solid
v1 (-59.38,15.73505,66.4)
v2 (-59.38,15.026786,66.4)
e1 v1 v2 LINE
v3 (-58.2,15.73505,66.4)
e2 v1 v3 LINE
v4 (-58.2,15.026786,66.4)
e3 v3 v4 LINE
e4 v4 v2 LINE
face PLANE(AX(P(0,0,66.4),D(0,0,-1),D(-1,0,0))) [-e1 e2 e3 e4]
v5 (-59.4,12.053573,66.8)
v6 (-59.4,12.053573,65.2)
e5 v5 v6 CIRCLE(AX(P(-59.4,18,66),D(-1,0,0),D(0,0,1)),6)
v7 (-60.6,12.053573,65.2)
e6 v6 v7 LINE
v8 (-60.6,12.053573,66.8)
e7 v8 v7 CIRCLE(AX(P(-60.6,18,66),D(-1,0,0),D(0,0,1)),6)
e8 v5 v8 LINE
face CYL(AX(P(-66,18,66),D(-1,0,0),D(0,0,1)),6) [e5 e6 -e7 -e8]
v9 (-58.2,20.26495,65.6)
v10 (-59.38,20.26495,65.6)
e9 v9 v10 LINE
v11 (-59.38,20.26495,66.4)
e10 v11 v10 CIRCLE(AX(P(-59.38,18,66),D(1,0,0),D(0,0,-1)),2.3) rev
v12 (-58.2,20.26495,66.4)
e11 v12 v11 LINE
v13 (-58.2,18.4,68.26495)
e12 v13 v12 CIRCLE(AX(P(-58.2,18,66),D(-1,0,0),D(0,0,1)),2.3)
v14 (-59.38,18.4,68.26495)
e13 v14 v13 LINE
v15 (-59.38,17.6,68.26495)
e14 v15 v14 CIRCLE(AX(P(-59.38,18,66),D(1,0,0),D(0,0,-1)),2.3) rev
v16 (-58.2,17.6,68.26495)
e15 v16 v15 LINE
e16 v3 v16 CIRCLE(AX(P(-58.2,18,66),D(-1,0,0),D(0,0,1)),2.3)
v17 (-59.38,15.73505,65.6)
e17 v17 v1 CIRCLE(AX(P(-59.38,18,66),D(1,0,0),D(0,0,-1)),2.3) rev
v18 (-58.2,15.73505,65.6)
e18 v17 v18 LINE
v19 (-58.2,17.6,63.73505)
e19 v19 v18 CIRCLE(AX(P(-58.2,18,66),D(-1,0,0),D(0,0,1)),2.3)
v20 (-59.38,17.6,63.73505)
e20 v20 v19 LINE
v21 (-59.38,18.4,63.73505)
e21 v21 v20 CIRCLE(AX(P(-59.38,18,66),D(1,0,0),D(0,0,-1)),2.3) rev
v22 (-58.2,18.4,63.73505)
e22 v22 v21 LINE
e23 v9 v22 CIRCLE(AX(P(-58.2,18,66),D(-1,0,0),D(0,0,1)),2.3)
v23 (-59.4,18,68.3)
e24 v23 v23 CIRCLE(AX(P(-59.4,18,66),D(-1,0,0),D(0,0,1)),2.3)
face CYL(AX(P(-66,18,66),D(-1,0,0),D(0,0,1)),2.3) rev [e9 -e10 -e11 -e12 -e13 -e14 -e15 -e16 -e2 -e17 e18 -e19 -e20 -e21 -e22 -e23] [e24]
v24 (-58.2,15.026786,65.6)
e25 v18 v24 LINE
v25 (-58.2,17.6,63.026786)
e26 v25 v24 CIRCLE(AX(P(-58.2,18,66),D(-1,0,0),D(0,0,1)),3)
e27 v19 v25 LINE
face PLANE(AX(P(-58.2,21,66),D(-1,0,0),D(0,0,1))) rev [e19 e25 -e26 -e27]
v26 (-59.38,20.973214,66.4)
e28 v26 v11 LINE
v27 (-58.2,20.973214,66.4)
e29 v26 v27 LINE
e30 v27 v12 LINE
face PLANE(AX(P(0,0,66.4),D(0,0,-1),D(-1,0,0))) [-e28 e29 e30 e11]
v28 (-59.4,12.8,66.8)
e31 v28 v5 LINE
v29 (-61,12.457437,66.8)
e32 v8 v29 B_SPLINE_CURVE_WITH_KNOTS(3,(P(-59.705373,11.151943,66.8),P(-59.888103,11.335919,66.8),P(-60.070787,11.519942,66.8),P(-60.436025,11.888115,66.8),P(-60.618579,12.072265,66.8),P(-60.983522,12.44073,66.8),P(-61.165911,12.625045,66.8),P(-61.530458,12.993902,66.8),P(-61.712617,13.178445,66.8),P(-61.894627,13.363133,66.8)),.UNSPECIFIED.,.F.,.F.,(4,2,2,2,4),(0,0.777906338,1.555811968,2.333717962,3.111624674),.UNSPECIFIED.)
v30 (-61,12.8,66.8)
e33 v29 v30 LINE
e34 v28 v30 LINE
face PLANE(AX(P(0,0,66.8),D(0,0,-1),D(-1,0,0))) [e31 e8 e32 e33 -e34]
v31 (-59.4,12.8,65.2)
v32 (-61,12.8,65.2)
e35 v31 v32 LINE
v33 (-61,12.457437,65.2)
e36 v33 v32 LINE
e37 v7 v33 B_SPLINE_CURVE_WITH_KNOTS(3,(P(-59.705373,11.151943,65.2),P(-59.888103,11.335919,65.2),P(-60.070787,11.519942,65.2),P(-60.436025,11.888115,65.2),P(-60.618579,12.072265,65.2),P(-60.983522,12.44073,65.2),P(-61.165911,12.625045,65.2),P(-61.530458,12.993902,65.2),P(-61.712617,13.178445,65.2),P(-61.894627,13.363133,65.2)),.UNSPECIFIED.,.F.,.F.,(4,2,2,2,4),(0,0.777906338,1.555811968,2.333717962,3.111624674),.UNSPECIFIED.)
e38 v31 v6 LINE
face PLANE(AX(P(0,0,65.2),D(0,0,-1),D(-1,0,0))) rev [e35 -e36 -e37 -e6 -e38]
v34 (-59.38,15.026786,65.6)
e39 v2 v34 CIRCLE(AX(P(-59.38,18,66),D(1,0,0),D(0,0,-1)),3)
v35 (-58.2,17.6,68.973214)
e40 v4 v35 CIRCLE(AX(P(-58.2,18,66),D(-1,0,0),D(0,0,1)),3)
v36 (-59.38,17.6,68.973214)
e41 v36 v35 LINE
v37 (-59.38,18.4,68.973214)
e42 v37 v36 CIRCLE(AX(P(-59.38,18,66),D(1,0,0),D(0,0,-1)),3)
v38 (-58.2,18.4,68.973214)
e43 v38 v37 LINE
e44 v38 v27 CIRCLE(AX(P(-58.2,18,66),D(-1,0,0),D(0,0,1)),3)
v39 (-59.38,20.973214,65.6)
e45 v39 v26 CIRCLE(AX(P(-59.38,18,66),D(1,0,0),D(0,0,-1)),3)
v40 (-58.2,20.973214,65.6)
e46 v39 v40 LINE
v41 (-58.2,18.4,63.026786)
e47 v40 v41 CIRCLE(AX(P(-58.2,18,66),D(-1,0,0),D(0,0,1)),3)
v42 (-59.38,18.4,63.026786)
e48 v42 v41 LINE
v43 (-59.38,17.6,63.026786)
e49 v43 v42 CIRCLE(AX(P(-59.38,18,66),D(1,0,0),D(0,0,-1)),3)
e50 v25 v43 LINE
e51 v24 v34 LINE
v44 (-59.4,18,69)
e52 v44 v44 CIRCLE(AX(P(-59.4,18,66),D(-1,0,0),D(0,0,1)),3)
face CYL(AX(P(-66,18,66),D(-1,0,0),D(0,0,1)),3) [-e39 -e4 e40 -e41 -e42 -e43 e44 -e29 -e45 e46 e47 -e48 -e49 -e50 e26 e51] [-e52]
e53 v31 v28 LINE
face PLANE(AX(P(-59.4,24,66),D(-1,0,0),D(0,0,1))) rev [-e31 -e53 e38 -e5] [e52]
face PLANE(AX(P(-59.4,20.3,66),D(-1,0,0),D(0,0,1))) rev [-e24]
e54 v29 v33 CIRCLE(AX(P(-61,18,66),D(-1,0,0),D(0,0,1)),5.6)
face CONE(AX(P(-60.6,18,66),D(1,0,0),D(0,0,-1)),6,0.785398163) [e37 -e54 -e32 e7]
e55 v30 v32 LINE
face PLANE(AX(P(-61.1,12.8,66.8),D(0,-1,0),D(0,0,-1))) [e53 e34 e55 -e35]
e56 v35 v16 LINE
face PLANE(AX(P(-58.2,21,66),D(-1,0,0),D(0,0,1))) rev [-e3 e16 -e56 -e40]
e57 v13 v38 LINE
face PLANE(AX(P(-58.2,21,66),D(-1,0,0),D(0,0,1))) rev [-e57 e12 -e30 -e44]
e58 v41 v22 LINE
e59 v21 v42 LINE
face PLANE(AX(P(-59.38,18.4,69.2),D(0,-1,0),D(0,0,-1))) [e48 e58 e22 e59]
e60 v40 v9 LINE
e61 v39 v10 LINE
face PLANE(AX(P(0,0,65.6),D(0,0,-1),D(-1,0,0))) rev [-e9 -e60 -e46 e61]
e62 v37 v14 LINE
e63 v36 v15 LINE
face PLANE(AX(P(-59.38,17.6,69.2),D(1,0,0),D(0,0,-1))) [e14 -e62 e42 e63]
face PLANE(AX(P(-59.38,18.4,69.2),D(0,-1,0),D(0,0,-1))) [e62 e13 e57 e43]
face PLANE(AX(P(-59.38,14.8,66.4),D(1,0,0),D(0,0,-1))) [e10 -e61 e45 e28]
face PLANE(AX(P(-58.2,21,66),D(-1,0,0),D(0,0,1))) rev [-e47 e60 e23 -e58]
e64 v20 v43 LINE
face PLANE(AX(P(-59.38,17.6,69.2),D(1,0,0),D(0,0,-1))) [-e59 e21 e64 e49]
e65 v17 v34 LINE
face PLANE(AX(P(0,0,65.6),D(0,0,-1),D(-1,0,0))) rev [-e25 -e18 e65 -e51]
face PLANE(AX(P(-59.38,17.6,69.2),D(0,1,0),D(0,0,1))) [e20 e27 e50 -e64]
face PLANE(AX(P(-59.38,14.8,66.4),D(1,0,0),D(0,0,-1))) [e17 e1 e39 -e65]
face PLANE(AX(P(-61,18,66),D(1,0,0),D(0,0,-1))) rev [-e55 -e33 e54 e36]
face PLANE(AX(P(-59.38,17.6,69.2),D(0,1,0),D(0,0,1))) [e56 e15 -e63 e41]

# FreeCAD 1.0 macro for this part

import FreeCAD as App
import Part
import Sketcher

V = App.Vector
Q = App.Units.Quantity

doc = App.newDocument("Part")
body = doc.addObject("PartDesign::Body", "Body")

# Sketch on XY plane
sketch1 = body.newObject("Sketcher::SketchObject", "Sketch")
sketch1.AttachmentSupport = (doc.getObject("XY_Plane"), [""])
sketch1.MapMode = "FlatFace"
sketch1.AttachmentOffset = App.Placement(V(0, 0, 66), App.Rotation())
sketch1.addGeometry(Part.LineSegment(V(-59.4, 20.3, 0), V(-58.2, 20.3, 0)), False)
sketch1.addGeometry(Part.LineSegment(V(-58.2, 20.3, 0), V(-58.2, 21, 0)), False)
sketch1.addGeometry(Part.LineSegment(V(-58.2, 21, 0), V(-59.4, 21, 0)), False)
sketch1.addGeometry(Part.LineSegment(V(-59.4, 21, 0), V(-59.4, 24, 0)), False)
sketch1.addGeometry(Part.LineSegment(V(-59.4, 24, 0), V(-60.6, 24, 0)), False)
sketch1.addGeometry(Part.LineSegment(V(-60.6, 24, 0), V(-61, 23.6, 0)), False)
sketch1.addGeometry(Part.LineSegment(V(-61, 23.6, 0), V(-61, 18, 0)), False)
sketch1.addGeometry(Part.LineSegment(V(-61, 18, 0), V(-59.4, 18, 0)), False)
sketch1.addGeometry(Part.LineSegment(V(-59.4, 18, 0), V(-59.4, 20.3, 0)), False)
sketch1.addGeometry(Part.LineSegment(V(-61, 18, 0), V(-58.2, 18, 0)), True)  # axis
sketch1.addConstraint(Sketcher.Constraint("Coincident", 0, 2, 1, 1))
sketch1.addConstraint(Sketcher.Constraint("Coincident", 1, 2, 2, 1))
sketch1.addConstraint(Sketcher.Constraint("Coincident", 2, 2, 3, 1))
sketch1.addConstraint(Sketcher.Constraint("Coincident", 3, 2, 4, 1))
sketch1.addConstraint(Sketcher.Constraint("Coincident", 4, 2, 5, 1))
sketch1.addConstraint(Sketcher.Constraint("Coincident", 5, 2, 6, 1))
sketch1.addConstraint(Sketcher.Constraint("Coincident", 6, 2, 7, 1))
sketch1.addConstraint(Sketcher.Constraint("Coincident", 7, 2, 8, 1))
sketch1.addConstraint(Sketcher.Constraint("Coincident", 8, 2, 0, 1))
sketch1.addConstraint(Sketcher.Constraint("Horizontal", 0))
sketch1.addConstraint(Sketcher.Constraint("Vertical", 1))
sketch1.addConstraint(Sketcher.Constraint("Horizontal", 2))
sketch1.addConstraint(Sketcher.Constraint("Vertical", 3))
sketch1.addConstraint(Sketcher.Constraint("Horizontal", 4))
sketch1.addConstraint(Sketcher.Constraint("Vertical", 6))
sketch1.addConstraint(Sketcher.Constraint("Horizontal", 7))
sketch1.addConstraint(Sketcher.Constraint("Vertical", 8))
sketch1.addConstraint(Sketcher.Constraint("Horizontal", 9))
sketch1.addConstraint(Sketcher.Constraint("Coincident", 9, 1, 6, 2))
sketch1.addConstraint(Sketcher.Constraint("Vertical", 3, 2, 7, 2))
sketch1.addConstraint(Sketcher.Constraint("Vertical", 1, 2, 9, 2))
sketch1.addConstraint(Sketcher.Constraint("Equal", 2, 4))
sketch1.addConstraint(Sketcher.Constraint("DistanceY", 3, 1, 3, 2, Q("3 mm")))
sketch1.addConstraint(Sketcher.Constraint("Angle", 5, Q("-135 deg")))
sketch1.addConstraint(Sketcher.Constraint("DistanceX", 0, 1, 0, 2, Q("1.2 mm")))
sketch1.addConstraint(Sketcher.Constraint("DistanceX", 7, 1, 7, 2, Q("1.6 mm")))
sketch1.addConstraint(Sketcher.Constraint("DistanceY", 1, 1, 1, 2, Q("0.7 mm")))
sketch1.addConstraint(Sketcher.Constraint("DistanceY", 6, 2, 6, 1, Q("5.6 mm")))
sketch1.addConstraint(Sketcher.Constraint("DistanceY", -1, 1, 1, 2, Q("21 mm")))
sketch1.addConstraint(Sketcher.Constraint("DistanceX", 5, 2, -1, 1, Q("61 mm")))
revolution = body.newObject("PartDesign::Revolution", "Revolution")
revolution.Profile = sketch1
revolution.ReferenceAxis = (sketch1, ["Axis0"])
revolution.Angle = 360
body2 = doc.addObject("PartDesign::Body", "Body001")

# Sketch on XY plane
sketch2 = body2.newObject("Sketcher::SketchObject", "Sketch001")
sketch2.AttachmentSupport = (doc.getObject("XY_Plane001"), [""])
sketch2.MapMode = "FlatFace"
sketch2.AttachmentOffset = App.Placement(V(0, 0, 62.8), App.Rotation())
sketch2.addGeometry(Part.LineSegment(V(-59.38, 18.4, 0), V(-59.38, 17.6, 0)), False)
sketch2.addGeometry(Part.LineSegment(V(-59.38, 17.6, 0), V(-58.1, 17.6, 0)), False)
sketch2.addGeometry(Part.LineSegment(V(-58.1, 17.6, 0), V(-58.1, 18.4, 0)), False)
sketch2.addGeometry(Part.LineSegment(V(-58.1, 18.4, 0), V(-59.38, 18.4, 0)), False)
sketch2.addConstraint(Sketcher.Constraint("Coincident", 0, 2, 1, 1))
sketch2.addConstraint(Sketcher.Constraint("Coincident", 1, 2, 2, 1))
sketch2.addConstraint(Sketcher.Constraint("Coincident", 2, 2, 3, 1))
sketch2.addConstraint(Sketcher.Constraint("Coincident", 3, 2, 0, 1))
sketch2.addConstraint(Sketcher.Constraint("Vertical", 0))
sketch2.addConstraint(Sketcher.Constraint("Horizontal", 1))
sketch2.addConstraint(Sketcher.Constraint("Vertical", 2))
sketch2.addConstraint(Sketcher.Constraint("Horizontal", 3))
sketch2.addConstraint(Sketcher.Constraint("DistanceY", 0, 2, 0, 1, Q("0.8 mm")))
sketch2.addConstraint(Sketcher.Constraint("DistanceX", 1, 1, 1, 2, Q("1.28 mm")))
sketch2.addConstraint(Sketcher.Constraint("DistanceY", -1, 1, 0, 2, Q("17.6 mm")))
sketch2.addConstraint(Sketcher.Constraint("DistanceX", 1, 2, -1, 1, Q("58.1 mm")))
pad1 = body2.newObject("PartDesign::Pad", "Pad")
pad1.Profile = sketch2
pad1.Length = 6.4
doc.recompute()

boolean = body.newObject("PartDesign::Boolean", "Boolean")
boolean.Type = "Cut"
boolean.addObjects([body2])
body3 = doc.addObject("PartDesign::Body", "Body002")

# Sketch on XY plane
sketch3 = body3.newObject("Sketcher::SketchObject", "Sketch002")
sketch3.AttachmentSupport = (doc.getObject("XY_Plane002"), [""])
sketch3.MapMode = "FlatFace"
sketch3.AttachmentOffset = App.Placement(V(0, 0, 65.6), App.Rotation())
sketch3.addGeometry(Part.LineSegment(V(-59.38, 21.2, 0), V(-59.38, 14.8, 0)), False)
sketch3.addGeometry(Part.LineSegment(V(-59.38, 14.8, 0), V(-58.1, 14.8, 0)), False)
sketch3.addGeometry(Part.LineSegment(V(-58.1, 14.8, 0), V(-58.1, 21.2, 0)), False)
sketch3.addGeometry(Part.LineSegment(V(-58.1, 21.2, 0), V(-59.38, 21.2, 0)), False)
sketch3.addConstraint(Sketcher.Constraint("Coincident", 0, 2, 1, 1))
sketch3.addConstraint(Sketcher.Constraint("Coincident", 1, 2, 2, 1))
sketch3.addConstraint(Sketcher.Constraint("Coincident", 2, 2, 3, 1))
sketch3.addConstraint(Sketcher.Constraint("Coincident", 3, 2, 0, 1))
sketch3.addConstraint(Sketcher.Constraint("Vertical", 0))
sketch3.addConstraint(Sketcher.Constraint("Horizontal", 1))
sketch3.addConstraint(Sketcher.Constraint("Vertical", 2))
sketch3.addConstraint(Sketcher.Constraint("Horizontal", 3))
sketch3.addConstraint(Sketcher.Constraint("DistanceY", 0, 2, 0, 1, Q("6.4 mm")))
sketch3.addConstraint(Sketcher.Constraint("DistanceX", 1, 1, 1, 2, Q("1.28 mm")))
sketch3.addConstraint(Sketcher.Constraint("DistanceY", -1, 1, 0, 2, Q("14.8 mm")))
sketch3.addConstraint(Sketcher.Constraint("DistanceX", 1, 2, -1, 1, Q("58.1 mm")))
pad2 = body3.newObject("PartDesign::Pad", "Pad001")
pad2.Profile = sketch3
pad2.Length = 0.8
doc.recompute()

boolean2 = body.newObject("PartDesign::Boolean", "Boolean001")
boolean2.Type = "Cut"
boolean2.addObjects([body3])
body4 = doc.addObject("PartDesign::Body", "Body003")

# Sketch on XY plane
sketch4 = body4.newObject("Sketcher::SketchObject", "Sketch003")
sketch4.AttachmentSupport = (doc.getObject("XY_Plane003"), [""])
sketch4.MapMode = "FlatFace"
sketch4.AttachmentOffset = App.Placement(V(0, 0, 65.2), App.Rotation())
sketch4.addGeometry(Part.LineSegment(V(-61.1, 12.8, 0), V(-61.1, 11.9, 0)), False)
sketch4.addGeometry(Part.LineSegment(V(-61.1, 11.9, 0), V(-59.3, 11.9, 0)), False)
sketch4.addGeometry(Part.LineSegment(V(-59.3, 11.9, 0), V(-59.3, 12.8, 0)), False)
sketch4.addGeometry(Part.LineSegment(V(-59.3, 12.8, 0), V(-61.1, 12.8, 0)), False)
sketch4.addConstraint(Sketcher.Constraint("Coincident", 0, 2, 1, 1))
sketch4.addConstraint(Sketcher.Constraint("Coincident", 1, 2, 2, 1))
sketch4.addConstraint(Sketcher.Constraint("Coincident", 2, 2, 3, 1))
sketch4.addConstraint(Sketcher.Constraint("Coincident", 3, 2, 0, 1))
sketch4.addConstraint(Sketcher.Constraint("Vertical", 0))
sketch4.addConstraint(Sketcher.Constraint("Horizontal", 1))
sketch4.addConstraint(Sketcher.Constraint("Vertical", 2))
sketch4.addConstraint(Sketcher.Constraint("Horizontal", 3))
sketch4.addConstraint(Sketcher.Constraint("DistanceX", 1, 1, 1, 2, Q("1.8 mm")))
sketch4.addConstraint(Sketcher.Constraint("DistanceY", 0, 2, 0, 1, Q("0.9 mm")))
sketch4.addConstraint(Sketcher.Constraint("DistanceX", 0, 2, -1, 1, Q("61.1 mm")))
sketch4.addConstraint(Sketcher.Constraint("DistanceY", -1, 1, 0, 2, Q("11.9 mm")))
pad3 = body4.newObject("PartDesign::Pad", "Pad002")
pad3.Profile = sketch4
pad3.Length = 1.6
doc.recompute()

boolean3 = body.newObject("PartDesign::Boolean", "Boolean002")
boolean3.Type = "Cut"
boolean3.addObjects([body4])

doc.recompute()
